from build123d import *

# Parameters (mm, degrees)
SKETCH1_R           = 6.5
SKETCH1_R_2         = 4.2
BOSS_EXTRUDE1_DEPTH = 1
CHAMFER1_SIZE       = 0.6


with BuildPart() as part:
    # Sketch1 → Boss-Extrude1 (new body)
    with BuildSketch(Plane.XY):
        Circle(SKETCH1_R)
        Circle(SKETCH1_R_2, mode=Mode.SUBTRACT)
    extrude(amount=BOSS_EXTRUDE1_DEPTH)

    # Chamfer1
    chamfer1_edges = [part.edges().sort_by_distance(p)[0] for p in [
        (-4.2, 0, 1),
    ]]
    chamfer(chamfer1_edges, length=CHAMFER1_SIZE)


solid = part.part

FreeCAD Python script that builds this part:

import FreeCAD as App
import Part
import Sketcher

V = App.Vector
Q = App.Units.Quantity


def edges_at(feature, points):
    """Names of the edges that pass closest to the given points."""
    edges = feature.Shape.Edges
    near = lambda p: min(range(len(edges)), key=lambda i: edges[i].distToShape(Part.Vertex(*p))[0])
    return sorted({f"Edge{near(p) + 1}" for p in points})

doc = App.newDocument("Part")
params = doc.addObject("Spreadsheet::Sheet", "Params")
for row, (alias, value) in enumerate([
    ("sketch1_diameter", "13 mm"),
    ("sketch1_diameter2", "8.4 mm"),
    ("pad1_length", "1 mm"),
    ("chamfer_size", "0.6 mm"),
], start=1):
    params.set(f"A{row}", alias)
    params.set(f"B{row}", "=" + value)
    params.setAlias(f"B{row}", alias)

body = doc.addObject("PartDesign::Body", "Body")

sketch1 = body.newObject("Sketcher::SketchObject", "Sketch")
sketch1.AttachmentSupport = (doc.getObject("XY_Plane"), [""])
sketch1.MapMode = "FlatFace"
sketch1.addGeometry([
    Part.Circle(V(0, 0, 0), V(0, 0, 1), 6.5),
    Part.Circle(V(0, 0, 0), V(0, 0, 1), 4.2),
], False)
sketch1.addConstraint([
    Sketcher.Constraint("Coincident", 0, 3, -1, 1),
    Sketcher.Constraint("Coincident", 1, 3, -1, 1),
    Sketcher.Constraint("Diameter", 0, Q("13 mm")),
    Sketcher.Constraint("Diameter", 1, Q("8.4 mm")),
])
sketch1.setExpression("Constraints[2]", "Params.sketch1_diameter")
sketch1.setExpression("Constraints[3]", "Params.sketch1_diameter2")
pad1 = body.newObject("PartDesign::Pad", "Pad")
pad1.Profile = sketch1
pad1.setExpression("Length", "Params.pad1_length")
doc.recompute()

chamfer = body.newObject("PartDesign::Chamfer", "Chamfer")
chamfer.Base = (pad1, edges_at(pad1, [(-4.2, 0, 1)]))
chamfer.setExpression("Size", "Params.chamfer_size")

doc.recompute()
